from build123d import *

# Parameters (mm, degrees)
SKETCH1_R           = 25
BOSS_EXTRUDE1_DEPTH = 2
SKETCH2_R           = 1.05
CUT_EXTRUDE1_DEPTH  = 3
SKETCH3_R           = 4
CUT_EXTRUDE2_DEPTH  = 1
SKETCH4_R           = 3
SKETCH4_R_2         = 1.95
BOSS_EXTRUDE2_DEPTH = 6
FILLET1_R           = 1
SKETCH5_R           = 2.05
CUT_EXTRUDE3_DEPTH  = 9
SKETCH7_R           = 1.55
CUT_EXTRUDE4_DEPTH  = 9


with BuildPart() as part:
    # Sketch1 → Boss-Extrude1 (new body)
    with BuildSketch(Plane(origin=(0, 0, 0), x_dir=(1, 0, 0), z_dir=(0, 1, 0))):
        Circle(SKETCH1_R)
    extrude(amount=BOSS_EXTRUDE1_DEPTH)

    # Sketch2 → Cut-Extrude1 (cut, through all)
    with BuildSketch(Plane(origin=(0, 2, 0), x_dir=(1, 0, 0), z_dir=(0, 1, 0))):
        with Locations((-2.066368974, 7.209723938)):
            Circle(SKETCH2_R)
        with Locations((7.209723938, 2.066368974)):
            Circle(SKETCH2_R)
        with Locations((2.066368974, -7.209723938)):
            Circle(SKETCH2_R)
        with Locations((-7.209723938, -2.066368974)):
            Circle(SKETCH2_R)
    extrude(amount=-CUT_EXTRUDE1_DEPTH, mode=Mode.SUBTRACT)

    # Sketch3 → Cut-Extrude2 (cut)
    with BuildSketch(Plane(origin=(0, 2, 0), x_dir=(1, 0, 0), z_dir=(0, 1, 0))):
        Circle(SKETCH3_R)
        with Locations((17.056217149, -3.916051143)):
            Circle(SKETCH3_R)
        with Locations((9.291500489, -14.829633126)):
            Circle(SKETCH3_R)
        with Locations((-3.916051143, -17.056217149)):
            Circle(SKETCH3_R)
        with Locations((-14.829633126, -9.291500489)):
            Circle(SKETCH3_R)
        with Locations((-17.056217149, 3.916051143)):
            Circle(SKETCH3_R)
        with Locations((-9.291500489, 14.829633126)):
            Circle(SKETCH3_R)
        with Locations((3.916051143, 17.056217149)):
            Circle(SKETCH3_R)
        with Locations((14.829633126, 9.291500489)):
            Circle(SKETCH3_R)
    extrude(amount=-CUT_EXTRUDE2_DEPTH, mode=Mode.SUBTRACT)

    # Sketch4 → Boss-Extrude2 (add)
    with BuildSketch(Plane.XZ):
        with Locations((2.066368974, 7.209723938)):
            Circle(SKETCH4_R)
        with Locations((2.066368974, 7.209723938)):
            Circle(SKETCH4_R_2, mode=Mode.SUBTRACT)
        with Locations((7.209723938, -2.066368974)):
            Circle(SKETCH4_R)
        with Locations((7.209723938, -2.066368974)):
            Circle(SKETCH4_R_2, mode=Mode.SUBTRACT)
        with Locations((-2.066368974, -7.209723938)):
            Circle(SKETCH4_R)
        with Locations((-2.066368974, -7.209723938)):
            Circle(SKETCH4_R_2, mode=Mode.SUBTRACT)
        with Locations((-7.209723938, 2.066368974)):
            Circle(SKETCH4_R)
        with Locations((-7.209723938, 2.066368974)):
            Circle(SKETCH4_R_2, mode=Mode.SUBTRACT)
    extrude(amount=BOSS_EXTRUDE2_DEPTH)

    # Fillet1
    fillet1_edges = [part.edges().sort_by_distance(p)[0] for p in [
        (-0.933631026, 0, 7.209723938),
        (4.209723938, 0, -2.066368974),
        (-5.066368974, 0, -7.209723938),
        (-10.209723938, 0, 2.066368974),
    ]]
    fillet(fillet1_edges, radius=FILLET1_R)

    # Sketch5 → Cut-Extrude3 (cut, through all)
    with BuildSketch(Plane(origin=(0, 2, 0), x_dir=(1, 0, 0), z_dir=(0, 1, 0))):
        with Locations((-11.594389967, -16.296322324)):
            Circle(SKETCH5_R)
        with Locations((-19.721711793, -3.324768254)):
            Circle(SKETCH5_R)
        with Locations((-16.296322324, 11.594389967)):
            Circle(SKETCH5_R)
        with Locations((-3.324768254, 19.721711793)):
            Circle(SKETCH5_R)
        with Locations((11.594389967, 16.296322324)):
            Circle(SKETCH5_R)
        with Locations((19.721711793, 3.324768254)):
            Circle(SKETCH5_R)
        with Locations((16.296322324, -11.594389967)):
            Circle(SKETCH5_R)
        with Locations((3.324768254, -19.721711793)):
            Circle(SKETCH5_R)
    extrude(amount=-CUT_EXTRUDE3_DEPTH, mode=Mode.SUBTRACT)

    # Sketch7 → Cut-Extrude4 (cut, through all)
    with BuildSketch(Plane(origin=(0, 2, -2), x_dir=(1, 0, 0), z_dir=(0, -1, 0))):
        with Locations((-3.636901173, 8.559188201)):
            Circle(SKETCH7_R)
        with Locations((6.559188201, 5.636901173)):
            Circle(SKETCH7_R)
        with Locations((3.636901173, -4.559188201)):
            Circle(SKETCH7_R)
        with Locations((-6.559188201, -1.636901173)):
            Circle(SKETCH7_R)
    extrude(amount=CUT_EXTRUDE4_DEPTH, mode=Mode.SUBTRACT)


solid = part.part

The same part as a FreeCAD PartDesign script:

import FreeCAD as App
import Part
import Sketcher


def edges_at(feature, points):
    """Names of the edges that pass closest to the given points."""
    edges = feature.Shape.Edges
    near = lambda p: min(range(len(edges)), key=lambda i: edges[i].distToShape(Part.Vertex(*p))[0])
    return sorted({f"Edge{near(p) + 1}" for p in points})

doc = App.newDocument("Part")
body = doc.addObject("PartDesign::Body", "Body")

# Sketch on XZ plane
sketch1 = body.newObject("Sketcher::SketchObject", "Sketch")
sketch1.AttachmentSupport = (doc.getObject("XZ_Plane"), [""])
sketch1.MapMode = "FlatFace"
sketch1.addGeometry(Part.Circle(App.Vector(0, 0, 0), App.Vector(0, 0, 1), 25), False)
sketch1.addConstraint([
    Sketcher.Constraint("Coincident", 0, 3, -1, 1),
    Sketcher.Constraint("Diameter", 0, 50.0),
])
pad1 = body.newObject("PartDesign::Pad", "Pad")
pad1.Profile = sketch1
pad1.Length = 2
pad1.Reversed = True

# Sketch on XZ plane
sketch2 = body.newObject("Sketcher::SketchObject", "Sketch001")
sketch2.AttachmentSupport = (doc.getObject("XZ_Plane"), [""])
sketch2.MapMode = "FlatFace"
sketch2.AttachmentOffset = App.Placement(App.Vector(0, 0, -2), App.Rotation())
sketch2.addGeometry([
    Part.Circle(App.Vector(-2.1, -7.2, 0), App.Vector(0, 0, 1), 1.1),
    Part.Circle(App.Vector(7.2, -2.1, 0), App.Vector(0, 0, 1), 1.1),
    Part.Circle(App.Vector(2.1, 7.2, 0), App.Vector(0, 0, 1), 1.1),
    Part.Circle(App.Vector(-7.2, 2.1, 0), App.Vector(0, 0, 1), 1.1),
], False)
sketch2.addConstraint([
    Sketcher.Constraint("Equal", 0, 1),
    Sketcher.Constraint("Equal", 1, 2),
    Sketcher.Constraint("Equal", 2, 3),
    Sketcher.Constraint("Symmetric", 0, 3, 2, 3, -1, 1),
    Sketcher.Constraint("Symmetric", 1, 3, 3, 3, -1, 1),
    Sketcher.Constraint("Diameter", 0, 2.1),
    Sketcher.Constraint("DistanceX", 0, 3, -1, 1, 2.066369),
    Sketcher.Constraint("DistanceY", 1, 3, -1, 1, 2.066369),
    Sketcher.Constraint("DistanceY", 0, 3, -1, 1, 7.209724),
    Sketcher.Constraint("DistanceX", -1, 1, 1, 3, 7.209724),
])
pocket1 = body.newObject("PartDesign::Pocket", "Pocket")
pocket1.Profile = sketch2
pocket1.Type = "ThroughAll"
pocket1.Reversed = True

# Sketch on XZ plane
sketch3 = body.newObject("Sketcher::SketchObject", "Sketch002")
sketch3.AttachmentSupport = (doc.getObject("XZ_Plane"), [""])
sketch3.MapMode = "FlatFace"
sketch3.AttachmentOffset = App.Placement(App.Vector(0, 0, -2), App.Rotation())
sketch3.addGeometry([
    Part.Circle(App.Vector(0, 0, 0), App.Vector(0, 0, 1), 4),  # 0
    Part.Circle(App.Vector(17.1, 3.9, 0), App.Vector(0, 0, 1), 4),  # 1
    Part.Circle(App.Vector(9.3, 14.8, 0), App.Vector(0, 0, 1), 4),  # 2
    Part.Circle(App.Vector(-3.9, 17.1, 0), App.Vector(0, 0, 1), 4),  # 3
    Part.Circle(App.Vector(-14.8, 9.3, 0), App.Vector(0, 0, 1), 4),  # 4
    Part.Circle(App.Vector(-17.1, -3.9, 0), App.Vector(0, 0, 1), 4),  # 5
    Part.Circle(App.Vector(-9.3, -14.8, 0), App.Vector(0, 0, 1), 4),  # 6
    Part.Circle(App.Vector(3.9, -17.1, 0), App.Vector(0, 0, 1), 4),  # 7
    Part.Circle(App.Vector(14.8, -9.3, 0), App.Vector(0, 0, 1), 4),  # 8
], False)
sketch3.addConstraint([
    Sketcher.Constraint("Coincident", 0, 3, -1, 1),
    Sketcher.Constraint("Equal", 0, 1),
    Sketcher.Constraint("Equal", 1, 2),
    Sketcher.Constraint("Equal", 2, 3),
    Sketcher.Constraint("Equal", 3, 4),
    Sketcher.Constraint("Equal", 4, 5),
    Sketcher.Constraint("Equal", 5, 6),
    Sketcher.Constraint("Equal", 6, 7),
    Sketcher.Constraint("Equal", 7, 8),
    Sketcher.Constraint("Symmetric", 1, 3, 5, 3, -1, 1),
    Sketcher.Constraint("Symmetric", 2, 3, 6, 3, -1, 1),
    Sketcher.Constraint("Symmetric", 3, 3, 7, 3, -1, 1),
    Sketcher.Constraint("Symmetric", 4, 3, 8, 3, -1, 1),
    Sketcher.Constraint("Diameter", 0, 8.0),
    Sketcher.Constraint("DistanceX", -1, 1, 2, 3, 9.2915),
    Sketcher.Constraint("DistanceY", -1, 1, 4, 3, 9.2915),
    Sketcher.Constraint("DistanceY", -1, 1, 1, 3, 3.916051),
    Sketcher.Constraint("DistanceX", 3, 3, -1, 1, 3.916051),
    Sketcher.Constraint("DistanceY", 1, 3, 2, 3, 10.913582),
    Sketcher.Constraint("DistanceX", 3, 3, 1, 3, 20.972268),
    Sketcher.Constraint("DistanceX", 4, 3, 3, 3, 10.913582),
    Sketcher.Constraint("DistanceY", 5, 3, 3, 3, 20.972268),
])
pocket2 = body.newObject("PartDesign::Pocket", "Pocket001")
pocket2.Profile = sketch3
pocket2.Length = 1
pocket2.Reversed = True

# Sketch on XZ plane
sketch4 = body.newObject("Sketcher::SketchObject", "Sketch003")
sketch4.AttachmentSupport = (doc.getObject("XZ_Plane"), [""])
sketch4.MapMode = "FlatFace"
sketch4.addGeometry([
    Part.Circle(App.Vector(2.1, 7.2, 0), App.Vector(0, 0, 1), 3),  # 0
    Part.Circle(App.Vector(2.1, 7.2, 0), App.Vector(0, 0, 1), 1.9),  # 1
    Part.Circle(App.Vector(7.2, -2.1, 0), App.Vector(0, 0, 1), 3),  # 2
    Part.Circle(App.Vector(7.2, -2.1, 0), App.Vector(0, 0, 1), 1.9),  # 3
    Part.Circle(App.Vector(-2.1, -7.2, 0), App.Vector(0, 0, 1), 3),  # 4
    Part.Circle(App.Vector(-2.1, -7.2, 0), App.Vector(0, 0, 1), 1.9),  # 5
    Part.Circle(App.Vector(-7.2, 2.1, 0), App.Vector(0, 0, 1), 3),  # 6
    Part.Circle(App.Vector(-7.2, 2.1, 0), App.Vector(0, 0, 1), 1.9),  # 7
], False)
sketch4.addConstraint([
    Sketcher.Constraint("Coincident", 1, 3, 0, 3),
    Sketcher.Constraint("Coincident", 3, 3, 2, 3),
    Sketcher.Constraint("Coincident", 5, 3, 4, 3),
    Sketcher.Constraint("Coincident", 7, 3, 6, 3),
    Sketcher.Constraint("Equal", 0, 2),
    Sketcher.Constraint("Equal", 1, 3),
    Sketcher.Constraint("Equal", 2, 4),
    Sketcher.Constraint("Equal", 3, 5),
    Sketcher.Constraint("Equal", 4, 6),
    Sketcher.Constraint("Equal", 5, 7),
    Sketcher.Constraint("Symmetric", 0, 3, 4, 3, -1, 1),
    Sketcher.Constraint("Symmetric", 2, 3, 6, 3, -1, 1),
    Sketcher.Constraint("Diameter", 0, 6.0),
    Sketcher.Constraint("Diameter", 1, 3.9),
    Sketcher.Constraint("DistanceX", -1, 1, 0, 3, 2.066369),
    Sketcher.Constraint("DistanceY", 2, 3, -1, 1, 2.066369),
    Sketcher.Constraint("DistanceY", -1, 1, 0, 3, 7.209724),
    Sketcher.Constraint("DistanceX", -1, 1, 2, 3, 7.209724),
])
pad2 = body.newObject("PartDesign::Pad", "Pad001")
pad2.Profile = sketch4
pad2.Length = 6
doc.recompute()

fillet = body.newObject("PartDesign::Fillet", "Fillet")
fillet.Base = (pad2, edges_at(pad2, [
    (-0.934, 0, 7.21),
    (4.21, 0, -2.066),
    (-5.066, 0, -7.21),
    (-10.21, 0, 2.066),
]))
fillet.Radius = 1

# Sketch on XZ plane
sketch5 = body.newObject("Sketcher::SketchObject", "Sketch004")
sketch5.AttachmentSupport = (doc.getObject("XZ_Plane"), [""])
sketch5.MapMode = "FlatFace"
sketch5.AttachmentOffset = App.Placement(App.Vector(0, 0, -2), App.Rotation())
sketch5.addGeometry([
    Part.Circle(App.Vector(-11.6, 16.3, 0), App.Vector(0, 0, 1), 2),  # 0
    Part.Circle(App.Vector(-19.7, 3.3, 0), App.Vector(0, 0, 1), 2),  # 1
    Part.Circle(App.Vector(-16.3, -11.6, 0), App.Vector(0, 0, 1), 2),  # 2
    Part.Circle(App.Vector(-3.3, -19.7, 0), App.Vector(0, 0, 1), 2),  # 3
    Part.Circle(App.Vector(11.6, -16.3, 0), App.Vector(0, 0, 1), 2),  # 4
    Part.Circle(App.Vector(19.7, -3.3, 0), App.Vector(0, 0, 1), 2),  # 5
    Part.Circle(App.Vector(16.3, 11.6, 0), App.Vector(0, 0, 1), 2),  # 6
    Part.Circle(App.Vector(3.3, 19.7, 0), App.Vector(0, 0, 1), 2),  # 7
], False)
sketch5.addConstraint([
    Sketcher.Constraint("Equal", 0, 1),
    Sketcher.Constraint("Equal", 1, 2),
    Sketcher.Constraint("Equal", 2, 3),
    Sketcher.Constraint("Equal", 3, 4),
    Sketcher.Constraint("Equal", 4, 5),
    Sketcher.Constraint("Equal", 5, 6),
    Sketcher.Constraint("Equal", 6, 7),
    Sketcher.Constraint("Symmetric", 0, 3, 4, 3, -1, 1),
    Sketcher.Constraint("Symmetric", 1, 3, 5, 3, -1, 1),
    Sketcher.Constraint("Symmetric", 2, 3, 6, 3, -1, 1),
    Sketcher.Constraint("Symmetric", 3, 3, 7, 3, -1, 1),
    Sketcher.Constraint("Diameter", 0, 4.1),
    Sketcher.Constraint("DistanceX", 1, 3, 4, 3, 31.316102),
    Sketcher.Constraint("DistanceY", 3, 3, 6, 3, 31.316102),
    Sketcher.Constraint("DistanceX", 0, 3, -1, 1, 11.59439),
    Sketcher.Constraint("DistanceY", -1, 1, 1, 3, 3.324768),
    Sketcher.Constraint("DistanceY", 2, 3, -1, 1, 11.59439),
    Sketcher.Constraint("DistanceX", 3, 3, -1, 1, 3.324768),
    Sketcher.Constraint("DistanceX", 1, 3, 2, 3, 3.425389),
    Sketcher.Constraint("DistanceY", 3, 3, 4, 3, 3.425389),
])
pocket3 = body.newObject("PartDesign::Pocket", "Pocket002")
pocket3.Profile = sketch5
pocket3.Type = "ThroughAll"
pocket3.Reversed = True

# Sketch on XZ plane
sketch6 = body.newObject("Sketcher::SketchObject", "Sketch005")
sketch6.AttachmentSupport = (doc.getObject("XZ_Plane"), [""])
sketch6.MapMode = "FlatFace"
sketch6.AttachmentOffset = App.Placement(App.Vector(0, 0, -2), App.Rotation())
sketch6.addGeometry([
    Part.Circle(App.Vector(-3.6, 6.6, 0), App.Vector(0, 0, 1), 1.6),
    Part.Circle(App.Vector(6.6, 3.6, 0), App.Vector(0, 0, 1), 1.6),
    Part.Circle(App.Vector(3.6, -6.6, 0), App.Vector(0, 0, 1), 1.6),
    Part.Circle(App.Vector(-6.6, -3.6, 0), App.Vector(0, 0, 1), 1.6),
], False)
sketch6.addConstraint([
    Sketcher.Constraint("Equal", 0, 1),
    Sketcher.Constraint("Equal", 1, 2),
    Sketcher.Constraint("Equal", 2, 3),
    Sketcher.Constraint("Symmetric", 0, 3, 2, 3, -1, 1),
    Sketcher.Constraint("Symmetric", 1, 3, 3, 3, -1, 1),
    Sketcher.Constraint("Diameter", 0, 3.1),
    Sketcher.Constraint("DistanceX", 0, 3, -1, 1, 3.636901),
    Sketcher.Constraint("DistanceY", -1, 1, 1, 3, 3.636901),
    Sketcher.Constraint("DistanceY", -1, 1, 0, 3, 6.559188),
    Sketcher.Constraint("DistanceX", -1, 1, 1, 3, 6.559188),
])
pocket4 = body.newObject("PartDesign::Pocket", "Pocket003")
pocket4.Profile = sketch6
pocket4.Type = "ThroughAll"
pocket4.Reversed = True

doc.recompute()
